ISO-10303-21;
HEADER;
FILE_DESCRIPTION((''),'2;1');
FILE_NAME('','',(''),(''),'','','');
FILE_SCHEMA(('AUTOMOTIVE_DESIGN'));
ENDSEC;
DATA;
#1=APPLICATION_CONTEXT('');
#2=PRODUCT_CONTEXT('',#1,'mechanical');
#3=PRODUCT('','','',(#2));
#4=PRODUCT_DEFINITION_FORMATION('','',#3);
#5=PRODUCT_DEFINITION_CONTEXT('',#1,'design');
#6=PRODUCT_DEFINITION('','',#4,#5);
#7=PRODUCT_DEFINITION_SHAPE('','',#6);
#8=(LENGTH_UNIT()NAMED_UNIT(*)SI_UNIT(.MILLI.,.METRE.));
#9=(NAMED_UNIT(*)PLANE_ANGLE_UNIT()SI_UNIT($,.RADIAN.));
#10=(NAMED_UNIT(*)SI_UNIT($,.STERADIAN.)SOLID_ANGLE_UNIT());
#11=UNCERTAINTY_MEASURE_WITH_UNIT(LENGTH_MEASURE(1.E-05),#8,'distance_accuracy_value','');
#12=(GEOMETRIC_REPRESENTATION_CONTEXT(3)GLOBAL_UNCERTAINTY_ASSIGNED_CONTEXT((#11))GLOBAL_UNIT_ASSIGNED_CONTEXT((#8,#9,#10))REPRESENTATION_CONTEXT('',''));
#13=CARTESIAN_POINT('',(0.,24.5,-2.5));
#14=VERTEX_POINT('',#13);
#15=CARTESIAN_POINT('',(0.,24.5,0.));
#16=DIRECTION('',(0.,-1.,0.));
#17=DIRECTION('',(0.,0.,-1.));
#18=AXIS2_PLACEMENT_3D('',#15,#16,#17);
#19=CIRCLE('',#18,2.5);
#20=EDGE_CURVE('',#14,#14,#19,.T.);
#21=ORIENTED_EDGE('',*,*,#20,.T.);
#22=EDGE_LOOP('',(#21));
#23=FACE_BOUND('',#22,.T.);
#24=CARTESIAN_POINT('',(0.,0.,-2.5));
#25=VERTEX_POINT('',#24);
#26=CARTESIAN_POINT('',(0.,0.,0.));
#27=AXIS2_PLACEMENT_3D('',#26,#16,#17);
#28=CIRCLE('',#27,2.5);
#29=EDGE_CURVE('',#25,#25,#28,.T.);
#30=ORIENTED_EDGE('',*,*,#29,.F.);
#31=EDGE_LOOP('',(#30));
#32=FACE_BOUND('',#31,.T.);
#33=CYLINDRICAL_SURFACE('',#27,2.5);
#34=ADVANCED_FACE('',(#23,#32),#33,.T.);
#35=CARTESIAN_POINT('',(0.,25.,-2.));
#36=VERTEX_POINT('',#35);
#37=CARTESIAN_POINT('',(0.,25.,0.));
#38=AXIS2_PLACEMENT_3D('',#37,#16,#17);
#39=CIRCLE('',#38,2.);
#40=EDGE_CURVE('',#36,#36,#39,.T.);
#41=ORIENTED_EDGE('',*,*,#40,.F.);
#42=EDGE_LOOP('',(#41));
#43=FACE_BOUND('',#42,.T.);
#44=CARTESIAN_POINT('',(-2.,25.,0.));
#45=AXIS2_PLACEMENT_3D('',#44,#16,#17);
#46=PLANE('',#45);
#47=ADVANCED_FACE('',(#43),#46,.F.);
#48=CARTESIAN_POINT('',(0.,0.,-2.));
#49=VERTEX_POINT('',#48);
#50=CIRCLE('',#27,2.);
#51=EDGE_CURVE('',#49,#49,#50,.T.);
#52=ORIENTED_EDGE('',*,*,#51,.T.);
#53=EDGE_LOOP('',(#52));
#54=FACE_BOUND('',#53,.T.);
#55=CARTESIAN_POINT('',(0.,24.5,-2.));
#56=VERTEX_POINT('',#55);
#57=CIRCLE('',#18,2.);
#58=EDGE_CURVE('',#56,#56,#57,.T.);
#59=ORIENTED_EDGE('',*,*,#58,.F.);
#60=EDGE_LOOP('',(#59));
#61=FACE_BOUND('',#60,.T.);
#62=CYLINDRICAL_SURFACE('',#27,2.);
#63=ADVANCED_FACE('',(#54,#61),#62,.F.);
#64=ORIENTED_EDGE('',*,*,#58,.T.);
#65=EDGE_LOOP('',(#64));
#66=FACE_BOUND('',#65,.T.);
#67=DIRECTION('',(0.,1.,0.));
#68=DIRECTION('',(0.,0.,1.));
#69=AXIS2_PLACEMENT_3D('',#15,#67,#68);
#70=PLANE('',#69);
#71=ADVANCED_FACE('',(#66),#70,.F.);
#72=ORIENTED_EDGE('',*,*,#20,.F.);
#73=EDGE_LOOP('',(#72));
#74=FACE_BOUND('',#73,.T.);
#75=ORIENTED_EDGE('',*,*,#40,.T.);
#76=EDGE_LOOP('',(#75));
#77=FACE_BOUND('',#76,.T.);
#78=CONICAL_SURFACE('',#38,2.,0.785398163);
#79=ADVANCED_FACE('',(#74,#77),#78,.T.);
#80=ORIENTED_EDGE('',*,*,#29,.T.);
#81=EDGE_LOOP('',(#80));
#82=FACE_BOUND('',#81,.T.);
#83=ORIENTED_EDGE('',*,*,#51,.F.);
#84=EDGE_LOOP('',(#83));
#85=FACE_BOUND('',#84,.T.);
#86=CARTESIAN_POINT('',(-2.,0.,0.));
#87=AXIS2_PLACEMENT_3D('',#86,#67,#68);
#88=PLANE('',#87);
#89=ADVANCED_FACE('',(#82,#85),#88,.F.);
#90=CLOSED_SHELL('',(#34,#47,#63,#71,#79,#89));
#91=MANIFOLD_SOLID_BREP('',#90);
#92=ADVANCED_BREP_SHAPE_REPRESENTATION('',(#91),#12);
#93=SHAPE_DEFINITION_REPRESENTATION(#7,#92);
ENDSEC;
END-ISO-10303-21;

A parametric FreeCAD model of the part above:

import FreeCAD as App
import Part
import Sketcher
from FreeCAD import Vector


def add_polygon(sketch, points):
    """Adds a closed chain of lines whose ends are joined by coincident constraints."""
    first, n = sketch.GeometryCount, len(points)
    for a, b in zip(points, points[1:] + points[:1]):
        sketch.addGeometry(Part.LineSegment(App.Vector(*a, 0), App.Vector(*b, 0)), False)
    for i in range(n):
        sketch.addConstraint(Sketcher.Constraint("Coincident", first + i, 2, first + (i + 1) % n, 1))

doc = App.newDocument("Part")
body = doc.addObject("PartDesign::Body", "Body")

# Sketch on XY plane
sketch1 = doc.addObject("Sketcher::SketchObject", "Sketch")
body.addObject(sketch1)
sketch1.AttachmentSupport = (doc.XY_Plane, [""])
sketch1.MapMode = "FlatFace"
add_polygon(sketch1, [(0, 24.5), (0, 25), (-2, 25), (-2.5, 24.5), (-2.5, 0), (-2, 0), (-2, 24.5)])  # lines 0-6
sketch1.addConstraint(Sketcher.Constraint("Vertical", 0))
sketch1.addConstraint(Sketcher.Constraint("Horizontal", 1))
sketch1.addConstraint(Sketcher.Constraint("Vertical", 3))
sketch1.addConstraint(Sketcher.Constraint("Horizontal", 4))
sketch1.addConstraint(Sketcher.Constraint("Vertical", 5))
sketch1.addConstraint(Sketcher.Constraint("Horizontal", 6))
sketch1.addConstraint(Sketcher.Constraint("PointOnObject", 0, 2, -2))
sketch1.addConstraint(Sketcher.Constraint("PointOnObject", 3, 2, -1))
sketch1.addConstraint(Sketcher.Constraint("Horizontal", 2, 2, 5, 2))
sketch1.addConstraint(Sketcher.Constraint("Vertical", 1, 2, 4, 2))
sketch1.addConstraint(Sketcher.Constraint("Equal", 4, 0))
sketch1.addConstraint(Sketcher.Constraint("DistanceX", 1, 2, 1, 1, 2.0))
sketch1.addConstraint(Sketcher.Constraint("DistanceX", 4, 1, 4, 2, 0.5))
sketch1.addConstraint(Sketcher.Constraint("DistanceY", 3, 2, 3, 1, 24.5))
revolution = doc.addObject("PartDesign::Revolution", "Revolution")
body.addObject(revolution)
revolution.Profile = sketch1
revolution.ReferenceAxis = (sketch1, ["V_Axis"])
revolution.Angle = 360

doc.recompute()
